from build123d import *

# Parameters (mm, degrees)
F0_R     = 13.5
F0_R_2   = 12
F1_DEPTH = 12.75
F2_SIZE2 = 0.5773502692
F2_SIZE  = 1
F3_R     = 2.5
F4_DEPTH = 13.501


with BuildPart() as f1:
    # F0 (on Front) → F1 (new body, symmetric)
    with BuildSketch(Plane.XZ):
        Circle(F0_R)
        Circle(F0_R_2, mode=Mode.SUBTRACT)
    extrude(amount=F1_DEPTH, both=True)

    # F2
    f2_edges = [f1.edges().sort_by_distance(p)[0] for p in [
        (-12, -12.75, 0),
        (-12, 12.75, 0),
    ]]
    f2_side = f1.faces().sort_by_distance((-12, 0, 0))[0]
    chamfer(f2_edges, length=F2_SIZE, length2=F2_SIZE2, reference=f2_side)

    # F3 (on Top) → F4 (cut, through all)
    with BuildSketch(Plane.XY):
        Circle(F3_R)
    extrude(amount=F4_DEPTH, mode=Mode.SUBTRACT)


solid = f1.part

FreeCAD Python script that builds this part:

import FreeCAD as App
import Part
import Sketcher
from FreeCAD import Vector
Q = App.Units.Quantity


def edges_at(feature, points):
    """Names of the edges that pass closest to the given points."""
    edges = feature.Shape.Edges
    near = lambda p: min(range(len(edges)), key=lambda i: edges[i].distToShape(Part.Vertex(*p))[0])
    return sorted({f"Edge{near(p) + 1}" for p in points})

doc = App.newDocument("Part")
body = doc.addObject("PartDesign::Body", "Body")

sketch1 = body.newObject("Sketcher::SketchObject", "Sketch")
sketch1.AttachmentSupport = (doc.getObject("XZ_Plane"), [""])
sketch1.MapMode = "FlatFace"
sketch1.addGeometry([
    Part.Circle(Vector(0, 0, 0), Vector(0, 0, 1), 13.5),
    Part.Circle(Vector(0, 0, 0), Vector(0, 0, 1), 12),
], False)
sketch1.addConstraint([
    Sketcher.Constraint("Coincident", 0, 3, -1, 1),
    Sketcher.Constraint("Coincident", 1, 3, -1, 1),
    Sketcher.Constraint("Diameter", 0, Q("27 mm")),
    Sketcher.Constraint("Diameter", 1, Q("24 mm")),
])
pad1 = body.newObject("PartDesign::Pad", "Pad")
pad1.Profile = sketch1
pad1.Length = 25.5
pad1.Midplane = True
doc.recompute()

chamfer = body.newObject("PartDesign::Chamfer", "Chamfer")
chamfer.Base = (pad1, edges_at(pad1, [(-12, -12.75, 0), (-12, 12.75, 0)]))
chamfer.ChamferType = "Two distances"
chamfer.Size = 1
chamfer.Size2 = 0.57735

sketch2 = body.newObject("Sketcher::SketchObject", "Sketch001")
sketch2.AttachmentSupport = (doc.getObject("XY_Plane"), [""])
sketch2.MapMode = "FlatFace"
sketch2.addGeometry(Part.Circle(Vector(0, 0, 0), Vector(0, 0, 1), 2.5), False)
sketch2.addConstraint([
    Sketcher.Constraint("Coincident", 0, 3, -1, 1),
    Sketcher.Constraint("Diameter", 0, Q("5 mm")),
])
pocket1 = body.newObject("PartDesign::Pocket", "Pocket")
pocket1.Profile = sketch2
pocket1.Type = "ThroughAll"
pocket1.Reversed = True

doc.recompute()
